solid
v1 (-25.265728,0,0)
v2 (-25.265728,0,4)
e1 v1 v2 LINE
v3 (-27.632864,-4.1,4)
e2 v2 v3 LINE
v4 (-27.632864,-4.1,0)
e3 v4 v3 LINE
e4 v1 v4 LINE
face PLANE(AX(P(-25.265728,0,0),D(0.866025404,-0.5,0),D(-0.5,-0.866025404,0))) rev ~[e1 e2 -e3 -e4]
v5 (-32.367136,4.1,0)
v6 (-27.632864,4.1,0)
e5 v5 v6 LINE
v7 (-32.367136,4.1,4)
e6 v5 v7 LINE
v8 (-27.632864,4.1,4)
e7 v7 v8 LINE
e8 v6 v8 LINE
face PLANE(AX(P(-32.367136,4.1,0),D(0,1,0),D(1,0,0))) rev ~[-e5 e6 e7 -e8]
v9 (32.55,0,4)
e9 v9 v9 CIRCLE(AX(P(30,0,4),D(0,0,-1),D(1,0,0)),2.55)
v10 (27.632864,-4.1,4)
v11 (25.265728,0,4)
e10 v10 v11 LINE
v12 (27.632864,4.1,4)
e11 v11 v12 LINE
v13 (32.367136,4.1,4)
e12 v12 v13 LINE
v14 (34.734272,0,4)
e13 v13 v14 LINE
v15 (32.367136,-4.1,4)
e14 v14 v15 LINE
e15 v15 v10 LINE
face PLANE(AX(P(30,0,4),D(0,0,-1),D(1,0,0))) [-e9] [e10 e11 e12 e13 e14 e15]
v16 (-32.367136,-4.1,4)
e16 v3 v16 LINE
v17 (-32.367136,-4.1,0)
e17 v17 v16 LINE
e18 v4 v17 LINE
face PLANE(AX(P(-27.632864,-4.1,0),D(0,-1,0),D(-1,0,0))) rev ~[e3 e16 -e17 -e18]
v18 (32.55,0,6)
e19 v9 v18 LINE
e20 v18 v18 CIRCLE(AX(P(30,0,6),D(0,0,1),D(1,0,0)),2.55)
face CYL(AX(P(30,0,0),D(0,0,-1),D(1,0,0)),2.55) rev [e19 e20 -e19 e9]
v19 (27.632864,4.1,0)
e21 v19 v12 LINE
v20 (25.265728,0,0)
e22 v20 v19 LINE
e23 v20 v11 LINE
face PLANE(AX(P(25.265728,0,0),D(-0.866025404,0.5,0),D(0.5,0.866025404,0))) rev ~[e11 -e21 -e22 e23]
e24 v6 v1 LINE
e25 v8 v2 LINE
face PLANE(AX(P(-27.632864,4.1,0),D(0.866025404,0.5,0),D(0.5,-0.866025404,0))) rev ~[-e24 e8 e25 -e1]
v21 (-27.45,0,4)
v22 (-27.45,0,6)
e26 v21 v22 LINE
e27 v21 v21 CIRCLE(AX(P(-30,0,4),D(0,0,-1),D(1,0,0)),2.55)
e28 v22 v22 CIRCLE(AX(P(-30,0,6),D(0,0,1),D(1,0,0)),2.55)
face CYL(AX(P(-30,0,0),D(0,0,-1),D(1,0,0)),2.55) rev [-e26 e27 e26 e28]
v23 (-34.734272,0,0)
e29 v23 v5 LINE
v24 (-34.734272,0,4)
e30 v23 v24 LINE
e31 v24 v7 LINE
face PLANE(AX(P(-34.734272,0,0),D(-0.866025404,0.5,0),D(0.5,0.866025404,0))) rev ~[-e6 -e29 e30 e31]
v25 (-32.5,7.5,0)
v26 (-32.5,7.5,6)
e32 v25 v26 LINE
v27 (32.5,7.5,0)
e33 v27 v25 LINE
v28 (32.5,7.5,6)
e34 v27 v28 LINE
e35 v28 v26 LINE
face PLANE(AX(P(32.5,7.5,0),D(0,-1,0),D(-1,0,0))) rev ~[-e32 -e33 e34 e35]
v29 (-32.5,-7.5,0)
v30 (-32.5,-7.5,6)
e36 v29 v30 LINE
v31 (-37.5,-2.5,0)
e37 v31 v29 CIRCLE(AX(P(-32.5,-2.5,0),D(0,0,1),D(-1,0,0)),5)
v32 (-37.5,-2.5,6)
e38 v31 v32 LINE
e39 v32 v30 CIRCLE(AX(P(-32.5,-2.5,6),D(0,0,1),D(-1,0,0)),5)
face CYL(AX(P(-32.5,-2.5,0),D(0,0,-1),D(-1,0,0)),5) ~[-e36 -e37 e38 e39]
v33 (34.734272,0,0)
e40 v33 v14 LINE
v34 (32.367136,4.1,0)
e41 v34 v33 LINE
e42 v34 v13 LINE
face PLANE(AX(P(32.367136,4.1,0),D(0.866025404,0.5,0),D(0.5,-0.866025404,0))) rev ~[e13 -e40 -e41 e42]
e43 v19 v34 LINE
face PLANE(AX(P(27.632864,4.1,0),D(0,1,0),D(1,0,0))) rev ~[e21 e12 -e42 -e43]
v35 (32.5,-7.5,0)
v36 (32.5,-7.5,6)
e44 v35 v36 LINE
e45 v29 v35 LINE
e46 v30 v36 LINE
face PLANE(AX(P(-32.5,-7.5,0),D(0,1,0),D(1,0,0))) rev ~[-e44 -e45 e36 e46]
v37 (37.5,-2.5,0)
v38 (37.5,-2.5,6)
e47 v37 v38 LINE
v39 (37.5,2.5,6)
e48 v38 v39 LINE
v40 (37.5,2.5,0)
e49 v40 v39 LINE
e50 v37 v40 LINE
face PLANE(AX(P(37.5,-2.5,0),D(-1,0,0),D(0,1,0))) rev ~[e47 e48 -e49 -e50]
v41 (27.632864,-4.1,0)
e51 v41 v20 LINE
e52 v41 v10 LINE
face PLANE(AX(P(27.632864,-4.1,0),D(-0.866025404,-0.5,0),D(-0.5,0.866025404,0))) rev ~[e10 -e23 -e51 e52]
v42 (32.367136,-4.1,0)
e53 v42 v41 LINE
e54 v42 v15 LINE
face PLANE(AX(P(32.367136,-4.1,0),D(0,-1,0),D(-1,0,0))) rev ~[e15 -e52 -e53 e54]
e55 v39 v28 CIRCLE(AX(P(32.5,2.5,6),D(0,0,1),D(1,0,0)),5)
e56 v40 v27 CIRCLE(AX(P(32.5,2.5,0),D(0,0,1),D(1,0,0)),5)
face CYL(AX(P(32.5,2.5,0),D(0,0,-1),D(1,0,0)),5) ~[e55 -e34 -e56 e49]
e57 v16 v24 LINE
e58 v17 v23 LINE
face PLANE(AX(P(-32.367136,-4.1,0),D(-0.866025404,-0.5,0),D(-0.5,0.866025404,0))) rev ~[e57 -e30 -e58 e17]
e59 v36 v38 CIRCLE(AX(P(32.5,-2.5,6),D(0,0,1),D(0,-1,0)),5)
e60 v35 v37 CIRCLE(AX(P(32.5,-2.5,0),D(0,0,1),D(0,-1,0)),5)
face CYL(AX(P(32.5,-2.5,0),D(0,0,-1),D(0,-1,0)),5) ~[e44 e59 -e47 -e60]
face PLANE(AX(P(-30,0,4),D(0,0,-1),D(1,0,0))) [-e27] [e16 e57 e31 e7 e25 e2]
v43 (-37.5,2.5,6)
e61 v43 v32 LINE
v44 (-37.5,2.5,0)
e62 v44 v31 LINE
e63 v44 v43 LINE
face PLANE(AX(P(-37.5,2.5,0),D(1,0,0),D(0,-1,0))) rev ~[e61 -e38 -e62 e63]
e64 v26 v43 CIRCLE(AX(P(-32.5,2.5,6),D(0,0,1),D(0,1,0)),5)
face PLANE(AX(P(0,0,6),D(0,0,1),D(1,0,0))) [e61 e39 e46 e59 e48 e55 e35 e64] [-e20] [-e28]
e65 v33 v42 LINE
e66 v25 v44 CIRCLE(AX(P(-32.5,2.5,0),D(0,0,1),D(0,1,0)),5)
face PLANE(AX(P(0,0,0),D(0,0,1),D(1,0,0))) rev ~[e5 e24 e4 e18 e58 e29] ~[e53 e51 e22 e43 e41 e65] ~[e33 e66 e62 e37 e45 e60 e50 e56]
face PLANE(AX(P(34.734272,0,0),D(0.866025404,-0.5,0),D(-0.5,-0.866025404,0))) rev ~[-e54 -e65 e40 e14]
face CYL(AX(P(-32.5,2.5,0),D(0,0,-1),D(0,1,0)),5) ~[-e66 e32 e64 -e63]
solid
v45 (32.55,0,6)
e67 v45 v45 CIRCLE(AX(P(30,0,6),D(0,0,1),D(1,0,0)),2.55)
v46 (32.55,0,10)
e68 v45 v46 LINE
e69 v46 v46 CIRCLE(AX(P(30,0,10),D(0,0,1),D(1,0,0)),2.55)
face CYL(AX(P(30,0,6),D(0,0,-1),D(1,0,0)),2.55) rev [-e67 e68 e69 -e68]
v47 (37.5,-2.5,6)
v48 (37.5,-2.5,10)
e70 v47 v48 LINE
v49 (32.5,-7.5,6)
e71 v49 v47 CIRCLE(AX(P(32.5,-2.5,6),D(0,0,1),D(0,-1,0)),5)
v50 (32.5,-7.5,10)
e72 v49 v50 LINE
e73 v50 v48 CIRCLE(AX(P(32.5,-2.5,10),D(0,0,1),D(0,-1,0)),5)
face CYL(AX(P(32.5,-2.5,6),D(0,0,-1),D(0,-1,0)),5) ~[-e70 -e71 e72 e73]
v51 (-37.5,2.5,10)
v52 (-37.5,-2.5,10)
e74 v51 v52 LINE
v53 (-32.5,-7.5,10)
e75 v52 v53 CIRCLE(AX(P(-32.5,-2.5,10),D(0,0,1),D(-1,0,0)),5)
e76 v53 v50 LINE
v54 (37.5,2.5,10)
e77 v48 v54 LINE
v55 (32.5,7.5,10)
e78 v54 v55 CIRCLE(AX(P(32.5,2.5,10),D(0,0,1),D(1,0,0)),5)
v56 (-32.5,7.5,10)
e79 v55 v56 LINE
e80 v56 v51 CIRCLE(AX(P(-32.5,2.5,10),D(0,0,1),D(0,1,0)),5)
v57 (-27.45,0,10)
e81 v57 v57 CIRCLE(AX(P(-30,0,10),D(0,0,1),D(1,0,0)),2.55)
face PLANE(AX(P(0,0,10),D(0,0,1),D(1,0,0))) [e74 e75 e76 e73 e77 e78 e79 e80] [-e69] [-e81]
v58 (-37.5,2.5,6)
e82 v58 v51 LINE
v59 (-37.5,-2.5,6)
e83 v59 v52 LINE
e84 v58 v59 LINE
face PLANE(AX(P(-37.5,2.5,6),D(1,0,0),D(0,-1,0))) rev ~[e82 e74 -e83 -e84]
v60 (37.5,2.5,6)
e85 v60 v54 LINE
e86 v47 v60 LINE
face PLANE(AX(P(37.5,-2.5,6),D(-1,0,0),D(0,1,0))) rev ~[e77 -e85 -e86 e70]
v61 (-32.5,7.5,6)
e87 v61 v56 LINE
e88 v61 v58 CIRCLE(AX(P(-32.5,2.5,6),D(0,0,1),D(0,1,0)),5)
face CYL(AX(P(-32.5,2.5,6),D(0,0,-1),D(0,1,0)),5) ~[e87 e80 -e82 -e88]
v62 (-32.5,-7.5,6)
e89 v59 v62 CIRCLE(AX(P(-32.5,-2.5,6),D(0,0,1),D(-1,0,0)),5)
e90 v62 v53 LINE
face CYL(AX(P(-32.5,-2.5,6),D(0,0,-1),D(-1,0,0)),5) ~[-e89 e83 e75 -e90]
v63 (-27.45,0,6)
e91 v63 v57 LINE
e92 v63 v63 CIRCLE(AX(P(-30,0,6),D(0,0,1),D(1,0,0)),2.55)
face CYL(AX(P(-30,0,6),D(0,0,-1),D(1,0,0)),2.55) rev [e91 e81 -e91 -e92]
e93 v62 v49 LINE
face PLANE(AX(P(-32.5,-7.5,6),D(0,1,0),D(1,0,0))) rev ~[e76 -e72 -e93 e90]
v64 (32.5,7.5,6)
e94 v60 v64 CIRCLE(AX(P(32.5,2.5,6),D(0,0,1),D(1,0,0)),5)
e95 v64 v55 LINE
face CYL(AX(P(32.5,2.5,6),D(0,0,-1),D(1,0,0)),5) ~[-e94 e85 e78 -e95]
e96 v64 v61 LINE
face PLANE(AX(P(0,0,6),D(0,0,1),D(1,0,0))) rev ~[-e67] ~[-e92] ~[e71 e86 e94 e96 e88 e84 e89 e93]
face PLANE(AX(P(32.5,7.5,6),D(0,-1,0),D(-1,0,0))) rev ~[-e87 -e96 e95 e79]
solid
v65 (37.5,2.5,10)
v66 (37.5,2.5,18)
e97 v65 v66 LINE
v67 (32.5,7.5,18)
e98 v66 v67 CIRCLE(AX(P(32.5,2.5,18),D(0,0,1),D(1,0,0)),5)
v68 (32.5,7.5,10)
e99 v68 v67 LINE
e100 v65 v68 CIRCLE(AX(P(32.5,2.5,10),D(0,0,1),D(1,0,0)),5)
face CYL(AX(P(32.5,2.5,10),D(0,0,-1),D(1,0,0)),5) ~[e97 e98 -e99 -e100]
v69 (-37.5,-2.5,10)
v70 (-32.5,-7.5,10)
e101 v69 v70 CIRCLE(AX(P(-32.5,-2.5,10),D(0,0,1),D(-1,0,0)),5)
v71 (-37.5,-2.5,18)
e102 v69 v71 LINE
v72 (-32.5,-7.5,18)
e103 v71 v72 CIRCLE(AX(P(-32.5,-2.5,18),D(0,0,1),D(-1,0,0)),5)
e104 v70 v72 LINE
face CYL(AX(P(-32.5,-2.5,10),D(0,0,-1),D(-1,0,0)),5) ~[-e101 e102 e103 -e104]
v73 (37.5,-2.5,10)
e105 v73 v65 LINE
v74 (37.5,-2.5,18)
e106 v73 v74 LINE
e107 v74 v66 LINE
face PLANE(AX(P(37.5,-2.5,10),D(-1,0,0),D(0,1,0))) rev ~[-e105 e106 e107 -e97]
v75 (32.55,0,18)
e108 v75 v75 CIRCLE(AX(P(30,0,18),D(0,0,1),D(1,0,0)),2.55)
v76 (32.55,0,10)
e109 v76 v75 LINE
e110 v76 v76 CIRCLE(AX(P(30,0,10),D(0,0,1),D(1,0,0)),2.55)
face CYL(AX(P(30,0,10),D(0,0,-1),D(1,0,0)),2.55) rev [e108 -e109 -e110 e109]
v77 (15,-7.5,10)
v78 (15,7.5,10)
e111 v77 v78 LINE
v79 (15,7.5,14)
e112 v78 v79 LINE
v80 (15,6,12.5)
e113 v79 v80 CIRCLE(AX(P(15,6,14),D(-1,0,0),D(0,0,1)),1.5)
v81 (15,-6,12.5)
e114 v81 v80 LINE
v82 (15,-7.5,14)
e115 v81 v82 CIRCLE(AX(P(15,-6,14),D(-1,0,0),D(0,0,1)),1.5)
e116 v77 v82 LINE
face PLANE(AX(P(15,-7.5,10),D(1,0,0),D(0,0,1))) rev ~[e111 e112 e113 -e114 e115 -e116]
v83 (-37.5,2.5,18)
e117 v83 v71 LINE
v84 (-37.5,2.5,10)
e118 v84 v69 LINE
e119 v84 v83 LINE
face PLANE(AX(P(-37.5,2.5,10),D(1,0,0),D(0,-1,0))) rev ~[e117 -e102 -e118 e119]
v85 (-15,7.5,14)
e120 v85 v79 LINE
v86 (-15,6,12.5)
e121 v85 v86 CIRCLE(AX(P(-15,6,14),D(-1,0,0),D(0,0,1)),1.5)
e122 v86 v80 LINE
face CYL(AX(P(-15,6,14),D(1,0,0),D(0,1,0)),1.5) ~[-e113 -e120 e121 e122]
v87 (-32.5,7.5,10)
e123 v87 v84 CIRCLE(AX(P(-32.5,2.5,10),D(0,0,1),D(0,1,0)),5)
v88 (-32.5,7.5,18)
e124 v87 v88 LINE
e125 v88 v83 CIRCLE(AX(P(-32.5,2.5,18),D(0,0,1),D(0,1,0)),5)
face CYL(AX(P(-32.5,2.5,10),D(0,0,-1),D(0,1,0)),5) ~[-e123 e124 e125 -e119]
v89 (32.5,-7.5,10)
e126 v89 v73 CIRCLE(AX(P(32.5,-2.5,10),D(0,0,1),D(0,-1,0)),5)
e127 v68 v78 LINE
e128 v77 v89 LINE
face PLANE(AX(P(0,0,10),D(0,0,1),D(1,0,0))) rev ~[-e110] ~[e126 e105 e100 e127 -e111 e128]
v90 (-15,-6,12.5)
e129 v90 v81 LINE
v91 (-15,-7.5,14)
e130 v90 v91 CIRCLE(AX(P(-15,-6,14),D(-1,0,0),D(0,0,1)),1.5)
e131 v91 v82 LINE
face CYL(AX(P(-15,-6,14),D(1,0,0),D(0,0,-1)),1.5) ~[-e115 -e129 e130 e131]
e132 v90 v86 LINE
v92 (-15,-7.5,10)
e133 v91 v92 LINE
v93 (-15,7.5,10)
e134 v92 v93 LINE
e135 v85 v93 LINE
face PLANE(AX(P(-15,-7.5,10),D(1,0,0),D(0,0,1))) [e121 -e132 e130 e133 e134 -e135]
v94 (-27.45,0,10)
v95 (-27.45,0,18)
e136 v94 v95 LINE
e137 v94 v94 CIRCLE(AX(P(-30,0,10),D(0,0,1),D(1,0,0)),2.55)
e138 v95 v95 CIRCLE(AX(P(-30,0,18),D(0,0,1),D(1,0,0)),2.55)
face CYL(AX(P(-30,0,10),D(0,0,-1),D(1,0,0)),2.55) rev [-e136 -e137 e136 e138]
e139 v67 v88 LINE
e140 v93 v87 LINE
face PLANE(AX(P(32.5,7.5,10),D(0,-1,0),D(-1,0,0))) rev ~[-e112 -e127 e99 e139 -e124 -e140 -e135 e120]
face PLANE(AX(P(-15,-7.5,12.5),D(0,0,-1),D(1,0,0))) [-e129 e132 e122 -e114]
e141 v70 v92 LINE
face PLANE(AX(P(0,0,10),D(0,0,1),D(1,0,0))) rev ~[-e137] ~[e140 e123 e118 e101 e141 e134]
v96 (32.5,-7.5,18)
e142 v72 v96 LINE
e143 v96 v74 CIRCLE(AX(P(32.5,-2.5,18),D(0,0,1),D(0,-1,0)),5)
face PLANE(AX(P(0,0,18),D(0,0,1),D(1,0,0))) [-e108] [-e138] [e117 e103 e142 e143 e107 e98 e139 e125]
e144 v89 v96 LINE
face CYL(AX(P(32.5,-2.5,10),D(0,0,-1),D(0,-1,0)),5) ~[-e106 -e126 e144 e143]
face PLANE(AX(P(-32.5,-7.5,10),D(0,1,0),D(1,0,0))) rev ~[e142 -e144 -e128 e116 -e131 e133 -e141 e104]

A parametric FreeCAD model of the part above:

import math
import FreeCAD as App
import Part
import Sketcher
from FreeCAD import Vector
Q = App.Units.Quantity


def edges_at(feature, points):
    """Names of the edges that pass closest to the given points."""
    edges = feature.Shape.Edges
    near = lambda p: min(range(len(edges)), key=lambda i: edges[i].distToShape(Part.Vertex(*p))[0])
    return sorted({f"Edge{near(p) + 1}" for p in points})


def add_polygon(sketch, points):
    """Adds a closed chain of lines whose ends are joined by coincident constraints."""
    first, n = sketch.GeometryCount, len(points)
    for a, b in zip(points, points[1:] + points[:1]):
        sketch.addGeometry(Part.LineSegment(App.Vector(*a, 0), App.Vector(*b, 0)), False)
    for i in range(n):
        sketch.addConstraint(Sketcher.Constraint("Coincident", first + i, 2, first + (i + 1) % n, 1))

doc = App.newDocument("Part")
body = doc.addObject("PartDesign::Body", "Body")

sketch1 = body.newObject("Sketcher::SketchObject", "Sketch")
sketch1.AttachmentSupport = (doc.getObject("XY_Plane"), [""])
sketch1.MapMode = "FlatFace"
sketch1.addGeometry([
    Part.LineSegment(Vector(-32.5, -7.5, 0), Vector(32.5, -7.5, 0)),
    Part.ArcOfCircle(Part.Circle(Vector(32.5, -2.5, 0), Vector(0, 0, 1), 5), math.radians(-90), math.radians(0)),
    Part.LineSegment(Vector(37.5, -2.5, 0), Vector(37.5, 2.5, 0)),
    Part.ArcOfCircle(Part.Circle(Vector(32.5, 2.5, 0), Vector(0, 0, 1), 5), math.radians(0), math.radians(90)),
    Part.LineSegment(Vector(32.5, 7.5, 0), Vector(-32.5, 7.5, 0)),
    Part.ArcOfCircle(Part.Circle(Vector(-32.5, 2.5, 0), Vector(0, 0, 1), 5), math.radians(90), math.radians(180)),
    Part.LineSegment(Vector(-37.5, 2.5, 0), Vector(-37.5, -2.5, 0)),
    Part.ArcOfCircle(Part.Circle(Vector(-32.5, -2.5, 0), Vector(0, 0, 1), 5), math.radians(180), math.radians(270)),
    Part.Circle(Vector(-30, 0, 0), Vector(0, 0, 1), 2.55),
    Part.Circle(Vector(30, 0, 0), Vector(0, 0, 1), 2.55),
], False)
sketch1.addConstraint([
    Sketcher.Constraint("Tangent", 0, 2, 1, 1),
    Sketcher.Constraint("Tangent", 1, 2, 2, 1),
    Sketcher.Constraint("Tangent", 2, 2, 3, 1),
    Sketcher.Constraint("Tangent", 3, 2, 4, 1),
    Sketcher.Constraint("Tangent", 4, 2, 5, 1),
    Sketcher.Constraint("Tangent", 5, 2, 6, 1),
    Sketcher.Constraint("Tangent", 6, 2, 7, 1),
    Sketcher.Constraint("Tangent", 7, 2, 0, 1),
    Sketcher.Constraint("Horizontal", 0),
    Sketcher.Constraint("Vertical", 2),
    Sketcher.Constraint("Horizontal", 4),
    Sketcher.Constraint("Vertical", 6),
    Sketcher.Constraint("Equal", 1, 3),
    Sketcher.Constraint("Equal", 3, 5),
    Sketcher.Constraint("Equal", 5, 7),
    Sketcher.Constraint("Equal", 8, 9),
    Sketcher.Constraint("Symmetric", 1, 3, 5, 3, -1, 1),
    Sketcher.Constraint("Symmetric", 8, 3, 9, 3, -1, 1),
    Sketcher.Constraint("PointOnObject", 8, 3, -1),
    Sketcher.Constraint("Radius", 1, Q("5 mm")),
    Sketcher.Constraint("Diameter", 8, Q("5.1 mm")),
    Sketcher.Constraint("DistanceX", 0, 1, 0, 2, Q("65 mm")),
    Sketcher.Constraint("DistanceY", 2, 1, 2, 2, Q("5 mm")),
    Sketcher.Constraint("DistanceX", 8, 3, -1, 1, Q("30 mm")),
])
pad1 = body.newObject("PartDesign::Pad", "Pad")
pad1.Profile = sketch1
pad1.Length = 6

sketch2 = body.newObject("Sketcher::SketchObject", "Sketch001")
sketch2.AttachmentSupport = (doc.getObject("XY_Plane"), [""])
sketch2.MapMode = "FlatFace"
add_polygon(sketch2, [(-32.367136, 4.1), (-27.632864, 4.1), (-25.265728, 0), (-27.632864, -4.1), (-32.367136, -4.1), (-34.734272, 0)])
add_polygon(sketch2, [(27.632864, 4.1), (32.367136, 4.1), (34.734272, 0), (32.367136, -4.1), (27.632864, -4.1), (25.265728, 0)])
sketch2.addConstraint([
    Sketcher.Constraint("Horizontal", 0),
    Sketcher.Constraint("Horizontal", 3),
    Sketcher.Constraint("Horizontal", 6),
    Sketcher.Constraint("Horizontal", 9),
    Sketcher.Constraint("Symmetric", 3, 2, 6, 2, -1, 1),
    Sketcher.Constraint("Symmetric", 4, 2, 7, 2, -1, 1),
    Sketcher.Constraint("Symmetric", 5, 2, 8, 2, -1, 1),
    Sketcher.Constraint("Symmetric", 1, 2, 10, 2, -1, 1),
    Sketcher.Constraint("Symmetric", 5, 2, 6, 2, -2),
    Sketcher.Constraint("PointOnObject", 1, 2, -1),
    Sketcher.Constraint("PointOnObject", 4, 2, -1),
    Sketcher.Constraint("Parallel", 1, 4),
    Sketcher.Constraint("Parallel", 2, 5),
    Sketcher.Constraint("Parallel", 7, 10),
    Sketcher.Constraint("Parallel", 8, 11),
    Sketcher.Constraint("Angle", 1, Q("-60 deg")),
    Sketcher.Constraint("DistanceX", 0, 2, 6, 2, Q("60 mm")),
    Sketcher.Constraint("DistanceY", -1, 1, 0, 2, Q("4.1 mm")),
    Sketcher.Constraint("DistanceX", 0, 1, 0, 2, Q("4.734272 mm")),
])
pocket1 = body.newObject("PartDesign::Pocket", "Pocket")
pocket1.Profile = sketch2
pocket1.Length = 4
pocket1.Reversed = True
body2 = doc.addObject("PartDesign::Body", "Body001")

sketch3 = body2.newObject("Sketcher::SketchObject", "Sketch002")
sketch3.AttachmentSupport = (doc.getObject("XY_Plane001"), [""])
sketch3.MapMode = "FlatFace"
sketch3.AttachmentOffset = App.Placement(Vector(0, 0, 6), App.Rotation())
sketch3.addGeometry([
    Part.LineSegment(Vector(-32.5, -7.5, 0), Vector(32.5, -7.5, 0)),
    Part.ArcOfCircle(Part.Circle(Vector(32.5, -2.5, 0), Vector(0, 0, 1), 5), math.radians(-90), math.radians(0)),
    Part.LineSegment(Vector(37.5, -2.5, 0), Vector(37.5, 2.5, 0)),
    Part.ArcOfCircle(Part.Circle(Vector(32.5, 2.5, 0), Vector(0, 0, 1), 5), math.radians(0), math.radians(90)),
    Part.LineSegment(Vector(32.5, 7.5, 0), Vector(-32.5, 7.5, 0)),
    Part.ArcOfCircle(Part.Circle(Vector(-32.5, 2.5, 0), Vector(0, 0, 1), 5), math.radians(90), math.radians(180)),
    Part.LineSegment(Vector(-37.5, 2.5, 0), Vector(-37.5, -2.5, 0)),
    Part.ArcOfCircle(Part.Circle(Vector(-32.5, -2.5, 0), Vector(0, 0, 1), 5), math.radians(180), math.radians(270)),
    Part.Circle(Vector(-30, 0, 0), Vector(0, 0, 1), 2.55),
    Part.Circle(Vector(30, 0, 0), Vector(0, 0, 1), 2.55),
], False)
sketch3.addConstraint([
    Sketcher.Constraint("Tangent", 0, 2, 1, 1),
    Sketcher.Constraint("Tangent", 1, 2, 2, 1),
    Sketcher.Constraint("Tangent", 2, 2, 3, 1),
    Sketcher.Constraint("Tangent", 3, 2, 4, 1),
    Sketcher.Constraint("Tangent", 4, 2, 5, 1),
    Sketcher.Constraint("Tangent", 5, 2, 6, 1),
    Sketcher.Constraint("Tangent", 6, 2, 7, 1),
    Sketcher.Constraint("Tangent", 7, 2, 0, 1),
    Sketcher.Constraint("Horizontal", 0),
    Sketcher.Constraint("Vertical", 2),
    Sketcher.Constraint("Horizontal", 4),
    Sketcher.Constraint("Vertical", 6),
    Sketcher.Constraint("Equal", 1, 3),
    Sketcher.Constraint("Equal", 3, 5),
    Sketcher.Constraint("Equal", 5, 7),
    Sketcher.Constraint("Equal", 8, 9),
    Sketcher.Constraint("Symmetric", 1, 3, 5, 3, -1, 1),
    Sketcher.Constraint("Symmetric", 8, 3, 9, 3, -1, 1),
    Sketcher.Constraint("PointOnObject", 8, 3, -1),
    Sketcher.Constraint("Radius", 1, Q("5 mm")),
    Sketcher.Constraint("Diameter", 8, Q("5.1 mm")),
    Sketcher.Constraint("DistanceX", 0, 1, 0, 2, Q("65 mm")),
    Sketcher.Constraint("DistanceY", 2, 1, 2, 2, Q("5 mm")),
    Sketcher.Constraint("DistanceX", 8, 3, -1, 1, Q("30 mm")),
])
pad2 = body2.newObject("PartDesign::Pad", "Pad001")
pad2.Profile = sketch3
pad2.Length = 4
body3 = doc.addObject("PartDesign::Body", "Body002")

sketch4 = body3.newObject("Sketcher::SketchObject", "Sketch003")
sketch4.AttachmentSupport = (doc.getObject("XY_Plane002"), [""])
sketch4.MapMode = "FlatFace"
sketch4.AttachmentOffset = App.Placement(Vector(0, 0, 10), App.Rotation())
sketch4.addGeometry([
    Part.ArcOfCircle(Part.Circle(Vector(32.5, 2.5, 0), Vector(0, 0, 1), 5), math.radians(0), math.radians(90)),
    Part.LineSegment(Vector(32.5, 7.5, 0), Vector(-32.5, 7.5, 0)),
    Part.ArcOfCircle(Part.Circle(Vector(-32.5, 2.5, 0), Vector(0, 0, 1), 5), math.radians(90), math.radians(180)),
    Part.LineSegment(Vector(-37.5, 2.5, 0), Vector(-37.5, -2.5, 0)),
    Part.ArcOfCircle(Part.Circle(Vector(-32.5, -2.5, 0), Vector(0, 0, 1), 5), math.radians(180), math.radians(270)),
    Part.LineSegment(Vector(-32.5, -7.5, 0), Vector(32.5, -7.5, 0)),
    Part.ArcOfCircle(Part.Circle(Vector(32.5, -2.5, 0), Vector(0, 0, 1), 5), math.radians(-90), math.radians(0)),
    Part.LineSegment(Vector(37.5, -2.5, 0), Vector(37.5, 2.5, 0)),
    Part.Circle(Vector(-30, 0, 0), Vector(0, 0, 1), 2.55),
    Part.Circle(Vector(30, 0, 0), Vector(0, 0, 1), 2.55),
], False)
sketch4.addConstraint([
    Sketcher.Constraint("Tangent", 0, 2, 1, 1),
    Sketcher.Constraint("Tangent", 1, 2, 2, 1),
    Sketcher.Constraint("Tangent", 2, 2, 3, 1),
    Sketcher.Constraint("Tangent", 3, 2, 4, 1),
    Sketcher.Constraint("Tangent", 4, 2, 5, 1),
    Sketcher.Constraint("Tangent", 5, 2, 6, 1),
    Sketcher.Constraint("Tangent", 6, 2, 7, 1),
    Sketcher.Constraint("Tangent", 7, 2, 0, 1),
    Sketcher.Constraint("Horizontal", 1),
    Sketcher.Constraint("Vertical", 3),
    Sketcher.Constraint("Horizontal", 5),
    Sketcher.Constraint("Vertical", 7),
    Sketcher.Constraint("Equal", 0, 2),
    Sketcher.Constraint("Equal", 2, 4),
    Sketcher.Constraint("Equal", 4, 6),
    Sketcher.Constraint("Equal", 8, 9),
    Sketcher.Constraint("Symmetric", 0, 3, 4, 3, -1, 1),
    Sketcher.Constraint("Symmetric", 8, 3, 9, 3, -1, 1),
    Sketcher.Constraint("PointOnObject", 8, 3, -1),
    Sketcher.Constraint("Radius", 0, Q("5 mm")),
    Sketcher.Constraint("Diameter", 8, Q("5.1 mm")),
    Sketcher.Constraint("DistanceX", 1, 2, 1, 1, Q("65 mm")),
    Sketcher.Constraint("DistanceY", 3, 2, 3, 1, Q("5 mm")),
    Sketcher.Constraint("DistanceX", 8, 3, -1, 1, Q("30 mm")),
])
pad3 = body3.newObject("PartDesign::Pad", "Pad002")
pad3.Profile = sketch4
pad3.Length = 8

sketch5 = body3.newObject("Sketcher::SketchObject", "Sketch004")
sketch5.AttachmentSupport = (doc.getObject("XZ_Plane002"), [""])
sketch5.MapMode = "FlatFace"
sketch5.AttachmentOffset = App.Placement(Vector(0, 0, 7.5), App.Rotation())
add_polygon(sketch5, [(-15, 12.5), (-15, 10), (15, 10), (15, 12.5)])
sketch5.addConstraint([
    Sketcher.Constraint("Vertical", 0),
    Sketcher.Constraint("Horizontal", 1),
    Sketcher.Constraint("Vertical", 2),
    Sketcher.Constraint("Horizontal", 3),
    Sketcher.Constraint("DistanceX", 1, 1, 1, 2, Q("30 mm")),
    Sketcher.Constraint("DistanceY", 0, 2, 0, 1, Q("2.5 mm")),
    Sketcher.Constraint("DistanceX", 0, 2, -1, 1, Q("15 mm")),
    Sketcher.Constraint("DistanceY", -1, 1, 0, 2, Q("10 mm")),
])
pocket2 = body3.newObject("PartDesign::Pocket", "Pocket001")
pocket2.Profile = sketch5
pocket2.Type = "ThroughAll"
doc.recompute()

fillet = body3.newObject("PartDesign::Fillet", "Fillet")
fillet.Base = (pocket2, edges_at(pocket2, [(0, 7.5, 12.5), (0, -7.5, 12.5)]))
fillet.Radius = 1.5

doc.recompute()
